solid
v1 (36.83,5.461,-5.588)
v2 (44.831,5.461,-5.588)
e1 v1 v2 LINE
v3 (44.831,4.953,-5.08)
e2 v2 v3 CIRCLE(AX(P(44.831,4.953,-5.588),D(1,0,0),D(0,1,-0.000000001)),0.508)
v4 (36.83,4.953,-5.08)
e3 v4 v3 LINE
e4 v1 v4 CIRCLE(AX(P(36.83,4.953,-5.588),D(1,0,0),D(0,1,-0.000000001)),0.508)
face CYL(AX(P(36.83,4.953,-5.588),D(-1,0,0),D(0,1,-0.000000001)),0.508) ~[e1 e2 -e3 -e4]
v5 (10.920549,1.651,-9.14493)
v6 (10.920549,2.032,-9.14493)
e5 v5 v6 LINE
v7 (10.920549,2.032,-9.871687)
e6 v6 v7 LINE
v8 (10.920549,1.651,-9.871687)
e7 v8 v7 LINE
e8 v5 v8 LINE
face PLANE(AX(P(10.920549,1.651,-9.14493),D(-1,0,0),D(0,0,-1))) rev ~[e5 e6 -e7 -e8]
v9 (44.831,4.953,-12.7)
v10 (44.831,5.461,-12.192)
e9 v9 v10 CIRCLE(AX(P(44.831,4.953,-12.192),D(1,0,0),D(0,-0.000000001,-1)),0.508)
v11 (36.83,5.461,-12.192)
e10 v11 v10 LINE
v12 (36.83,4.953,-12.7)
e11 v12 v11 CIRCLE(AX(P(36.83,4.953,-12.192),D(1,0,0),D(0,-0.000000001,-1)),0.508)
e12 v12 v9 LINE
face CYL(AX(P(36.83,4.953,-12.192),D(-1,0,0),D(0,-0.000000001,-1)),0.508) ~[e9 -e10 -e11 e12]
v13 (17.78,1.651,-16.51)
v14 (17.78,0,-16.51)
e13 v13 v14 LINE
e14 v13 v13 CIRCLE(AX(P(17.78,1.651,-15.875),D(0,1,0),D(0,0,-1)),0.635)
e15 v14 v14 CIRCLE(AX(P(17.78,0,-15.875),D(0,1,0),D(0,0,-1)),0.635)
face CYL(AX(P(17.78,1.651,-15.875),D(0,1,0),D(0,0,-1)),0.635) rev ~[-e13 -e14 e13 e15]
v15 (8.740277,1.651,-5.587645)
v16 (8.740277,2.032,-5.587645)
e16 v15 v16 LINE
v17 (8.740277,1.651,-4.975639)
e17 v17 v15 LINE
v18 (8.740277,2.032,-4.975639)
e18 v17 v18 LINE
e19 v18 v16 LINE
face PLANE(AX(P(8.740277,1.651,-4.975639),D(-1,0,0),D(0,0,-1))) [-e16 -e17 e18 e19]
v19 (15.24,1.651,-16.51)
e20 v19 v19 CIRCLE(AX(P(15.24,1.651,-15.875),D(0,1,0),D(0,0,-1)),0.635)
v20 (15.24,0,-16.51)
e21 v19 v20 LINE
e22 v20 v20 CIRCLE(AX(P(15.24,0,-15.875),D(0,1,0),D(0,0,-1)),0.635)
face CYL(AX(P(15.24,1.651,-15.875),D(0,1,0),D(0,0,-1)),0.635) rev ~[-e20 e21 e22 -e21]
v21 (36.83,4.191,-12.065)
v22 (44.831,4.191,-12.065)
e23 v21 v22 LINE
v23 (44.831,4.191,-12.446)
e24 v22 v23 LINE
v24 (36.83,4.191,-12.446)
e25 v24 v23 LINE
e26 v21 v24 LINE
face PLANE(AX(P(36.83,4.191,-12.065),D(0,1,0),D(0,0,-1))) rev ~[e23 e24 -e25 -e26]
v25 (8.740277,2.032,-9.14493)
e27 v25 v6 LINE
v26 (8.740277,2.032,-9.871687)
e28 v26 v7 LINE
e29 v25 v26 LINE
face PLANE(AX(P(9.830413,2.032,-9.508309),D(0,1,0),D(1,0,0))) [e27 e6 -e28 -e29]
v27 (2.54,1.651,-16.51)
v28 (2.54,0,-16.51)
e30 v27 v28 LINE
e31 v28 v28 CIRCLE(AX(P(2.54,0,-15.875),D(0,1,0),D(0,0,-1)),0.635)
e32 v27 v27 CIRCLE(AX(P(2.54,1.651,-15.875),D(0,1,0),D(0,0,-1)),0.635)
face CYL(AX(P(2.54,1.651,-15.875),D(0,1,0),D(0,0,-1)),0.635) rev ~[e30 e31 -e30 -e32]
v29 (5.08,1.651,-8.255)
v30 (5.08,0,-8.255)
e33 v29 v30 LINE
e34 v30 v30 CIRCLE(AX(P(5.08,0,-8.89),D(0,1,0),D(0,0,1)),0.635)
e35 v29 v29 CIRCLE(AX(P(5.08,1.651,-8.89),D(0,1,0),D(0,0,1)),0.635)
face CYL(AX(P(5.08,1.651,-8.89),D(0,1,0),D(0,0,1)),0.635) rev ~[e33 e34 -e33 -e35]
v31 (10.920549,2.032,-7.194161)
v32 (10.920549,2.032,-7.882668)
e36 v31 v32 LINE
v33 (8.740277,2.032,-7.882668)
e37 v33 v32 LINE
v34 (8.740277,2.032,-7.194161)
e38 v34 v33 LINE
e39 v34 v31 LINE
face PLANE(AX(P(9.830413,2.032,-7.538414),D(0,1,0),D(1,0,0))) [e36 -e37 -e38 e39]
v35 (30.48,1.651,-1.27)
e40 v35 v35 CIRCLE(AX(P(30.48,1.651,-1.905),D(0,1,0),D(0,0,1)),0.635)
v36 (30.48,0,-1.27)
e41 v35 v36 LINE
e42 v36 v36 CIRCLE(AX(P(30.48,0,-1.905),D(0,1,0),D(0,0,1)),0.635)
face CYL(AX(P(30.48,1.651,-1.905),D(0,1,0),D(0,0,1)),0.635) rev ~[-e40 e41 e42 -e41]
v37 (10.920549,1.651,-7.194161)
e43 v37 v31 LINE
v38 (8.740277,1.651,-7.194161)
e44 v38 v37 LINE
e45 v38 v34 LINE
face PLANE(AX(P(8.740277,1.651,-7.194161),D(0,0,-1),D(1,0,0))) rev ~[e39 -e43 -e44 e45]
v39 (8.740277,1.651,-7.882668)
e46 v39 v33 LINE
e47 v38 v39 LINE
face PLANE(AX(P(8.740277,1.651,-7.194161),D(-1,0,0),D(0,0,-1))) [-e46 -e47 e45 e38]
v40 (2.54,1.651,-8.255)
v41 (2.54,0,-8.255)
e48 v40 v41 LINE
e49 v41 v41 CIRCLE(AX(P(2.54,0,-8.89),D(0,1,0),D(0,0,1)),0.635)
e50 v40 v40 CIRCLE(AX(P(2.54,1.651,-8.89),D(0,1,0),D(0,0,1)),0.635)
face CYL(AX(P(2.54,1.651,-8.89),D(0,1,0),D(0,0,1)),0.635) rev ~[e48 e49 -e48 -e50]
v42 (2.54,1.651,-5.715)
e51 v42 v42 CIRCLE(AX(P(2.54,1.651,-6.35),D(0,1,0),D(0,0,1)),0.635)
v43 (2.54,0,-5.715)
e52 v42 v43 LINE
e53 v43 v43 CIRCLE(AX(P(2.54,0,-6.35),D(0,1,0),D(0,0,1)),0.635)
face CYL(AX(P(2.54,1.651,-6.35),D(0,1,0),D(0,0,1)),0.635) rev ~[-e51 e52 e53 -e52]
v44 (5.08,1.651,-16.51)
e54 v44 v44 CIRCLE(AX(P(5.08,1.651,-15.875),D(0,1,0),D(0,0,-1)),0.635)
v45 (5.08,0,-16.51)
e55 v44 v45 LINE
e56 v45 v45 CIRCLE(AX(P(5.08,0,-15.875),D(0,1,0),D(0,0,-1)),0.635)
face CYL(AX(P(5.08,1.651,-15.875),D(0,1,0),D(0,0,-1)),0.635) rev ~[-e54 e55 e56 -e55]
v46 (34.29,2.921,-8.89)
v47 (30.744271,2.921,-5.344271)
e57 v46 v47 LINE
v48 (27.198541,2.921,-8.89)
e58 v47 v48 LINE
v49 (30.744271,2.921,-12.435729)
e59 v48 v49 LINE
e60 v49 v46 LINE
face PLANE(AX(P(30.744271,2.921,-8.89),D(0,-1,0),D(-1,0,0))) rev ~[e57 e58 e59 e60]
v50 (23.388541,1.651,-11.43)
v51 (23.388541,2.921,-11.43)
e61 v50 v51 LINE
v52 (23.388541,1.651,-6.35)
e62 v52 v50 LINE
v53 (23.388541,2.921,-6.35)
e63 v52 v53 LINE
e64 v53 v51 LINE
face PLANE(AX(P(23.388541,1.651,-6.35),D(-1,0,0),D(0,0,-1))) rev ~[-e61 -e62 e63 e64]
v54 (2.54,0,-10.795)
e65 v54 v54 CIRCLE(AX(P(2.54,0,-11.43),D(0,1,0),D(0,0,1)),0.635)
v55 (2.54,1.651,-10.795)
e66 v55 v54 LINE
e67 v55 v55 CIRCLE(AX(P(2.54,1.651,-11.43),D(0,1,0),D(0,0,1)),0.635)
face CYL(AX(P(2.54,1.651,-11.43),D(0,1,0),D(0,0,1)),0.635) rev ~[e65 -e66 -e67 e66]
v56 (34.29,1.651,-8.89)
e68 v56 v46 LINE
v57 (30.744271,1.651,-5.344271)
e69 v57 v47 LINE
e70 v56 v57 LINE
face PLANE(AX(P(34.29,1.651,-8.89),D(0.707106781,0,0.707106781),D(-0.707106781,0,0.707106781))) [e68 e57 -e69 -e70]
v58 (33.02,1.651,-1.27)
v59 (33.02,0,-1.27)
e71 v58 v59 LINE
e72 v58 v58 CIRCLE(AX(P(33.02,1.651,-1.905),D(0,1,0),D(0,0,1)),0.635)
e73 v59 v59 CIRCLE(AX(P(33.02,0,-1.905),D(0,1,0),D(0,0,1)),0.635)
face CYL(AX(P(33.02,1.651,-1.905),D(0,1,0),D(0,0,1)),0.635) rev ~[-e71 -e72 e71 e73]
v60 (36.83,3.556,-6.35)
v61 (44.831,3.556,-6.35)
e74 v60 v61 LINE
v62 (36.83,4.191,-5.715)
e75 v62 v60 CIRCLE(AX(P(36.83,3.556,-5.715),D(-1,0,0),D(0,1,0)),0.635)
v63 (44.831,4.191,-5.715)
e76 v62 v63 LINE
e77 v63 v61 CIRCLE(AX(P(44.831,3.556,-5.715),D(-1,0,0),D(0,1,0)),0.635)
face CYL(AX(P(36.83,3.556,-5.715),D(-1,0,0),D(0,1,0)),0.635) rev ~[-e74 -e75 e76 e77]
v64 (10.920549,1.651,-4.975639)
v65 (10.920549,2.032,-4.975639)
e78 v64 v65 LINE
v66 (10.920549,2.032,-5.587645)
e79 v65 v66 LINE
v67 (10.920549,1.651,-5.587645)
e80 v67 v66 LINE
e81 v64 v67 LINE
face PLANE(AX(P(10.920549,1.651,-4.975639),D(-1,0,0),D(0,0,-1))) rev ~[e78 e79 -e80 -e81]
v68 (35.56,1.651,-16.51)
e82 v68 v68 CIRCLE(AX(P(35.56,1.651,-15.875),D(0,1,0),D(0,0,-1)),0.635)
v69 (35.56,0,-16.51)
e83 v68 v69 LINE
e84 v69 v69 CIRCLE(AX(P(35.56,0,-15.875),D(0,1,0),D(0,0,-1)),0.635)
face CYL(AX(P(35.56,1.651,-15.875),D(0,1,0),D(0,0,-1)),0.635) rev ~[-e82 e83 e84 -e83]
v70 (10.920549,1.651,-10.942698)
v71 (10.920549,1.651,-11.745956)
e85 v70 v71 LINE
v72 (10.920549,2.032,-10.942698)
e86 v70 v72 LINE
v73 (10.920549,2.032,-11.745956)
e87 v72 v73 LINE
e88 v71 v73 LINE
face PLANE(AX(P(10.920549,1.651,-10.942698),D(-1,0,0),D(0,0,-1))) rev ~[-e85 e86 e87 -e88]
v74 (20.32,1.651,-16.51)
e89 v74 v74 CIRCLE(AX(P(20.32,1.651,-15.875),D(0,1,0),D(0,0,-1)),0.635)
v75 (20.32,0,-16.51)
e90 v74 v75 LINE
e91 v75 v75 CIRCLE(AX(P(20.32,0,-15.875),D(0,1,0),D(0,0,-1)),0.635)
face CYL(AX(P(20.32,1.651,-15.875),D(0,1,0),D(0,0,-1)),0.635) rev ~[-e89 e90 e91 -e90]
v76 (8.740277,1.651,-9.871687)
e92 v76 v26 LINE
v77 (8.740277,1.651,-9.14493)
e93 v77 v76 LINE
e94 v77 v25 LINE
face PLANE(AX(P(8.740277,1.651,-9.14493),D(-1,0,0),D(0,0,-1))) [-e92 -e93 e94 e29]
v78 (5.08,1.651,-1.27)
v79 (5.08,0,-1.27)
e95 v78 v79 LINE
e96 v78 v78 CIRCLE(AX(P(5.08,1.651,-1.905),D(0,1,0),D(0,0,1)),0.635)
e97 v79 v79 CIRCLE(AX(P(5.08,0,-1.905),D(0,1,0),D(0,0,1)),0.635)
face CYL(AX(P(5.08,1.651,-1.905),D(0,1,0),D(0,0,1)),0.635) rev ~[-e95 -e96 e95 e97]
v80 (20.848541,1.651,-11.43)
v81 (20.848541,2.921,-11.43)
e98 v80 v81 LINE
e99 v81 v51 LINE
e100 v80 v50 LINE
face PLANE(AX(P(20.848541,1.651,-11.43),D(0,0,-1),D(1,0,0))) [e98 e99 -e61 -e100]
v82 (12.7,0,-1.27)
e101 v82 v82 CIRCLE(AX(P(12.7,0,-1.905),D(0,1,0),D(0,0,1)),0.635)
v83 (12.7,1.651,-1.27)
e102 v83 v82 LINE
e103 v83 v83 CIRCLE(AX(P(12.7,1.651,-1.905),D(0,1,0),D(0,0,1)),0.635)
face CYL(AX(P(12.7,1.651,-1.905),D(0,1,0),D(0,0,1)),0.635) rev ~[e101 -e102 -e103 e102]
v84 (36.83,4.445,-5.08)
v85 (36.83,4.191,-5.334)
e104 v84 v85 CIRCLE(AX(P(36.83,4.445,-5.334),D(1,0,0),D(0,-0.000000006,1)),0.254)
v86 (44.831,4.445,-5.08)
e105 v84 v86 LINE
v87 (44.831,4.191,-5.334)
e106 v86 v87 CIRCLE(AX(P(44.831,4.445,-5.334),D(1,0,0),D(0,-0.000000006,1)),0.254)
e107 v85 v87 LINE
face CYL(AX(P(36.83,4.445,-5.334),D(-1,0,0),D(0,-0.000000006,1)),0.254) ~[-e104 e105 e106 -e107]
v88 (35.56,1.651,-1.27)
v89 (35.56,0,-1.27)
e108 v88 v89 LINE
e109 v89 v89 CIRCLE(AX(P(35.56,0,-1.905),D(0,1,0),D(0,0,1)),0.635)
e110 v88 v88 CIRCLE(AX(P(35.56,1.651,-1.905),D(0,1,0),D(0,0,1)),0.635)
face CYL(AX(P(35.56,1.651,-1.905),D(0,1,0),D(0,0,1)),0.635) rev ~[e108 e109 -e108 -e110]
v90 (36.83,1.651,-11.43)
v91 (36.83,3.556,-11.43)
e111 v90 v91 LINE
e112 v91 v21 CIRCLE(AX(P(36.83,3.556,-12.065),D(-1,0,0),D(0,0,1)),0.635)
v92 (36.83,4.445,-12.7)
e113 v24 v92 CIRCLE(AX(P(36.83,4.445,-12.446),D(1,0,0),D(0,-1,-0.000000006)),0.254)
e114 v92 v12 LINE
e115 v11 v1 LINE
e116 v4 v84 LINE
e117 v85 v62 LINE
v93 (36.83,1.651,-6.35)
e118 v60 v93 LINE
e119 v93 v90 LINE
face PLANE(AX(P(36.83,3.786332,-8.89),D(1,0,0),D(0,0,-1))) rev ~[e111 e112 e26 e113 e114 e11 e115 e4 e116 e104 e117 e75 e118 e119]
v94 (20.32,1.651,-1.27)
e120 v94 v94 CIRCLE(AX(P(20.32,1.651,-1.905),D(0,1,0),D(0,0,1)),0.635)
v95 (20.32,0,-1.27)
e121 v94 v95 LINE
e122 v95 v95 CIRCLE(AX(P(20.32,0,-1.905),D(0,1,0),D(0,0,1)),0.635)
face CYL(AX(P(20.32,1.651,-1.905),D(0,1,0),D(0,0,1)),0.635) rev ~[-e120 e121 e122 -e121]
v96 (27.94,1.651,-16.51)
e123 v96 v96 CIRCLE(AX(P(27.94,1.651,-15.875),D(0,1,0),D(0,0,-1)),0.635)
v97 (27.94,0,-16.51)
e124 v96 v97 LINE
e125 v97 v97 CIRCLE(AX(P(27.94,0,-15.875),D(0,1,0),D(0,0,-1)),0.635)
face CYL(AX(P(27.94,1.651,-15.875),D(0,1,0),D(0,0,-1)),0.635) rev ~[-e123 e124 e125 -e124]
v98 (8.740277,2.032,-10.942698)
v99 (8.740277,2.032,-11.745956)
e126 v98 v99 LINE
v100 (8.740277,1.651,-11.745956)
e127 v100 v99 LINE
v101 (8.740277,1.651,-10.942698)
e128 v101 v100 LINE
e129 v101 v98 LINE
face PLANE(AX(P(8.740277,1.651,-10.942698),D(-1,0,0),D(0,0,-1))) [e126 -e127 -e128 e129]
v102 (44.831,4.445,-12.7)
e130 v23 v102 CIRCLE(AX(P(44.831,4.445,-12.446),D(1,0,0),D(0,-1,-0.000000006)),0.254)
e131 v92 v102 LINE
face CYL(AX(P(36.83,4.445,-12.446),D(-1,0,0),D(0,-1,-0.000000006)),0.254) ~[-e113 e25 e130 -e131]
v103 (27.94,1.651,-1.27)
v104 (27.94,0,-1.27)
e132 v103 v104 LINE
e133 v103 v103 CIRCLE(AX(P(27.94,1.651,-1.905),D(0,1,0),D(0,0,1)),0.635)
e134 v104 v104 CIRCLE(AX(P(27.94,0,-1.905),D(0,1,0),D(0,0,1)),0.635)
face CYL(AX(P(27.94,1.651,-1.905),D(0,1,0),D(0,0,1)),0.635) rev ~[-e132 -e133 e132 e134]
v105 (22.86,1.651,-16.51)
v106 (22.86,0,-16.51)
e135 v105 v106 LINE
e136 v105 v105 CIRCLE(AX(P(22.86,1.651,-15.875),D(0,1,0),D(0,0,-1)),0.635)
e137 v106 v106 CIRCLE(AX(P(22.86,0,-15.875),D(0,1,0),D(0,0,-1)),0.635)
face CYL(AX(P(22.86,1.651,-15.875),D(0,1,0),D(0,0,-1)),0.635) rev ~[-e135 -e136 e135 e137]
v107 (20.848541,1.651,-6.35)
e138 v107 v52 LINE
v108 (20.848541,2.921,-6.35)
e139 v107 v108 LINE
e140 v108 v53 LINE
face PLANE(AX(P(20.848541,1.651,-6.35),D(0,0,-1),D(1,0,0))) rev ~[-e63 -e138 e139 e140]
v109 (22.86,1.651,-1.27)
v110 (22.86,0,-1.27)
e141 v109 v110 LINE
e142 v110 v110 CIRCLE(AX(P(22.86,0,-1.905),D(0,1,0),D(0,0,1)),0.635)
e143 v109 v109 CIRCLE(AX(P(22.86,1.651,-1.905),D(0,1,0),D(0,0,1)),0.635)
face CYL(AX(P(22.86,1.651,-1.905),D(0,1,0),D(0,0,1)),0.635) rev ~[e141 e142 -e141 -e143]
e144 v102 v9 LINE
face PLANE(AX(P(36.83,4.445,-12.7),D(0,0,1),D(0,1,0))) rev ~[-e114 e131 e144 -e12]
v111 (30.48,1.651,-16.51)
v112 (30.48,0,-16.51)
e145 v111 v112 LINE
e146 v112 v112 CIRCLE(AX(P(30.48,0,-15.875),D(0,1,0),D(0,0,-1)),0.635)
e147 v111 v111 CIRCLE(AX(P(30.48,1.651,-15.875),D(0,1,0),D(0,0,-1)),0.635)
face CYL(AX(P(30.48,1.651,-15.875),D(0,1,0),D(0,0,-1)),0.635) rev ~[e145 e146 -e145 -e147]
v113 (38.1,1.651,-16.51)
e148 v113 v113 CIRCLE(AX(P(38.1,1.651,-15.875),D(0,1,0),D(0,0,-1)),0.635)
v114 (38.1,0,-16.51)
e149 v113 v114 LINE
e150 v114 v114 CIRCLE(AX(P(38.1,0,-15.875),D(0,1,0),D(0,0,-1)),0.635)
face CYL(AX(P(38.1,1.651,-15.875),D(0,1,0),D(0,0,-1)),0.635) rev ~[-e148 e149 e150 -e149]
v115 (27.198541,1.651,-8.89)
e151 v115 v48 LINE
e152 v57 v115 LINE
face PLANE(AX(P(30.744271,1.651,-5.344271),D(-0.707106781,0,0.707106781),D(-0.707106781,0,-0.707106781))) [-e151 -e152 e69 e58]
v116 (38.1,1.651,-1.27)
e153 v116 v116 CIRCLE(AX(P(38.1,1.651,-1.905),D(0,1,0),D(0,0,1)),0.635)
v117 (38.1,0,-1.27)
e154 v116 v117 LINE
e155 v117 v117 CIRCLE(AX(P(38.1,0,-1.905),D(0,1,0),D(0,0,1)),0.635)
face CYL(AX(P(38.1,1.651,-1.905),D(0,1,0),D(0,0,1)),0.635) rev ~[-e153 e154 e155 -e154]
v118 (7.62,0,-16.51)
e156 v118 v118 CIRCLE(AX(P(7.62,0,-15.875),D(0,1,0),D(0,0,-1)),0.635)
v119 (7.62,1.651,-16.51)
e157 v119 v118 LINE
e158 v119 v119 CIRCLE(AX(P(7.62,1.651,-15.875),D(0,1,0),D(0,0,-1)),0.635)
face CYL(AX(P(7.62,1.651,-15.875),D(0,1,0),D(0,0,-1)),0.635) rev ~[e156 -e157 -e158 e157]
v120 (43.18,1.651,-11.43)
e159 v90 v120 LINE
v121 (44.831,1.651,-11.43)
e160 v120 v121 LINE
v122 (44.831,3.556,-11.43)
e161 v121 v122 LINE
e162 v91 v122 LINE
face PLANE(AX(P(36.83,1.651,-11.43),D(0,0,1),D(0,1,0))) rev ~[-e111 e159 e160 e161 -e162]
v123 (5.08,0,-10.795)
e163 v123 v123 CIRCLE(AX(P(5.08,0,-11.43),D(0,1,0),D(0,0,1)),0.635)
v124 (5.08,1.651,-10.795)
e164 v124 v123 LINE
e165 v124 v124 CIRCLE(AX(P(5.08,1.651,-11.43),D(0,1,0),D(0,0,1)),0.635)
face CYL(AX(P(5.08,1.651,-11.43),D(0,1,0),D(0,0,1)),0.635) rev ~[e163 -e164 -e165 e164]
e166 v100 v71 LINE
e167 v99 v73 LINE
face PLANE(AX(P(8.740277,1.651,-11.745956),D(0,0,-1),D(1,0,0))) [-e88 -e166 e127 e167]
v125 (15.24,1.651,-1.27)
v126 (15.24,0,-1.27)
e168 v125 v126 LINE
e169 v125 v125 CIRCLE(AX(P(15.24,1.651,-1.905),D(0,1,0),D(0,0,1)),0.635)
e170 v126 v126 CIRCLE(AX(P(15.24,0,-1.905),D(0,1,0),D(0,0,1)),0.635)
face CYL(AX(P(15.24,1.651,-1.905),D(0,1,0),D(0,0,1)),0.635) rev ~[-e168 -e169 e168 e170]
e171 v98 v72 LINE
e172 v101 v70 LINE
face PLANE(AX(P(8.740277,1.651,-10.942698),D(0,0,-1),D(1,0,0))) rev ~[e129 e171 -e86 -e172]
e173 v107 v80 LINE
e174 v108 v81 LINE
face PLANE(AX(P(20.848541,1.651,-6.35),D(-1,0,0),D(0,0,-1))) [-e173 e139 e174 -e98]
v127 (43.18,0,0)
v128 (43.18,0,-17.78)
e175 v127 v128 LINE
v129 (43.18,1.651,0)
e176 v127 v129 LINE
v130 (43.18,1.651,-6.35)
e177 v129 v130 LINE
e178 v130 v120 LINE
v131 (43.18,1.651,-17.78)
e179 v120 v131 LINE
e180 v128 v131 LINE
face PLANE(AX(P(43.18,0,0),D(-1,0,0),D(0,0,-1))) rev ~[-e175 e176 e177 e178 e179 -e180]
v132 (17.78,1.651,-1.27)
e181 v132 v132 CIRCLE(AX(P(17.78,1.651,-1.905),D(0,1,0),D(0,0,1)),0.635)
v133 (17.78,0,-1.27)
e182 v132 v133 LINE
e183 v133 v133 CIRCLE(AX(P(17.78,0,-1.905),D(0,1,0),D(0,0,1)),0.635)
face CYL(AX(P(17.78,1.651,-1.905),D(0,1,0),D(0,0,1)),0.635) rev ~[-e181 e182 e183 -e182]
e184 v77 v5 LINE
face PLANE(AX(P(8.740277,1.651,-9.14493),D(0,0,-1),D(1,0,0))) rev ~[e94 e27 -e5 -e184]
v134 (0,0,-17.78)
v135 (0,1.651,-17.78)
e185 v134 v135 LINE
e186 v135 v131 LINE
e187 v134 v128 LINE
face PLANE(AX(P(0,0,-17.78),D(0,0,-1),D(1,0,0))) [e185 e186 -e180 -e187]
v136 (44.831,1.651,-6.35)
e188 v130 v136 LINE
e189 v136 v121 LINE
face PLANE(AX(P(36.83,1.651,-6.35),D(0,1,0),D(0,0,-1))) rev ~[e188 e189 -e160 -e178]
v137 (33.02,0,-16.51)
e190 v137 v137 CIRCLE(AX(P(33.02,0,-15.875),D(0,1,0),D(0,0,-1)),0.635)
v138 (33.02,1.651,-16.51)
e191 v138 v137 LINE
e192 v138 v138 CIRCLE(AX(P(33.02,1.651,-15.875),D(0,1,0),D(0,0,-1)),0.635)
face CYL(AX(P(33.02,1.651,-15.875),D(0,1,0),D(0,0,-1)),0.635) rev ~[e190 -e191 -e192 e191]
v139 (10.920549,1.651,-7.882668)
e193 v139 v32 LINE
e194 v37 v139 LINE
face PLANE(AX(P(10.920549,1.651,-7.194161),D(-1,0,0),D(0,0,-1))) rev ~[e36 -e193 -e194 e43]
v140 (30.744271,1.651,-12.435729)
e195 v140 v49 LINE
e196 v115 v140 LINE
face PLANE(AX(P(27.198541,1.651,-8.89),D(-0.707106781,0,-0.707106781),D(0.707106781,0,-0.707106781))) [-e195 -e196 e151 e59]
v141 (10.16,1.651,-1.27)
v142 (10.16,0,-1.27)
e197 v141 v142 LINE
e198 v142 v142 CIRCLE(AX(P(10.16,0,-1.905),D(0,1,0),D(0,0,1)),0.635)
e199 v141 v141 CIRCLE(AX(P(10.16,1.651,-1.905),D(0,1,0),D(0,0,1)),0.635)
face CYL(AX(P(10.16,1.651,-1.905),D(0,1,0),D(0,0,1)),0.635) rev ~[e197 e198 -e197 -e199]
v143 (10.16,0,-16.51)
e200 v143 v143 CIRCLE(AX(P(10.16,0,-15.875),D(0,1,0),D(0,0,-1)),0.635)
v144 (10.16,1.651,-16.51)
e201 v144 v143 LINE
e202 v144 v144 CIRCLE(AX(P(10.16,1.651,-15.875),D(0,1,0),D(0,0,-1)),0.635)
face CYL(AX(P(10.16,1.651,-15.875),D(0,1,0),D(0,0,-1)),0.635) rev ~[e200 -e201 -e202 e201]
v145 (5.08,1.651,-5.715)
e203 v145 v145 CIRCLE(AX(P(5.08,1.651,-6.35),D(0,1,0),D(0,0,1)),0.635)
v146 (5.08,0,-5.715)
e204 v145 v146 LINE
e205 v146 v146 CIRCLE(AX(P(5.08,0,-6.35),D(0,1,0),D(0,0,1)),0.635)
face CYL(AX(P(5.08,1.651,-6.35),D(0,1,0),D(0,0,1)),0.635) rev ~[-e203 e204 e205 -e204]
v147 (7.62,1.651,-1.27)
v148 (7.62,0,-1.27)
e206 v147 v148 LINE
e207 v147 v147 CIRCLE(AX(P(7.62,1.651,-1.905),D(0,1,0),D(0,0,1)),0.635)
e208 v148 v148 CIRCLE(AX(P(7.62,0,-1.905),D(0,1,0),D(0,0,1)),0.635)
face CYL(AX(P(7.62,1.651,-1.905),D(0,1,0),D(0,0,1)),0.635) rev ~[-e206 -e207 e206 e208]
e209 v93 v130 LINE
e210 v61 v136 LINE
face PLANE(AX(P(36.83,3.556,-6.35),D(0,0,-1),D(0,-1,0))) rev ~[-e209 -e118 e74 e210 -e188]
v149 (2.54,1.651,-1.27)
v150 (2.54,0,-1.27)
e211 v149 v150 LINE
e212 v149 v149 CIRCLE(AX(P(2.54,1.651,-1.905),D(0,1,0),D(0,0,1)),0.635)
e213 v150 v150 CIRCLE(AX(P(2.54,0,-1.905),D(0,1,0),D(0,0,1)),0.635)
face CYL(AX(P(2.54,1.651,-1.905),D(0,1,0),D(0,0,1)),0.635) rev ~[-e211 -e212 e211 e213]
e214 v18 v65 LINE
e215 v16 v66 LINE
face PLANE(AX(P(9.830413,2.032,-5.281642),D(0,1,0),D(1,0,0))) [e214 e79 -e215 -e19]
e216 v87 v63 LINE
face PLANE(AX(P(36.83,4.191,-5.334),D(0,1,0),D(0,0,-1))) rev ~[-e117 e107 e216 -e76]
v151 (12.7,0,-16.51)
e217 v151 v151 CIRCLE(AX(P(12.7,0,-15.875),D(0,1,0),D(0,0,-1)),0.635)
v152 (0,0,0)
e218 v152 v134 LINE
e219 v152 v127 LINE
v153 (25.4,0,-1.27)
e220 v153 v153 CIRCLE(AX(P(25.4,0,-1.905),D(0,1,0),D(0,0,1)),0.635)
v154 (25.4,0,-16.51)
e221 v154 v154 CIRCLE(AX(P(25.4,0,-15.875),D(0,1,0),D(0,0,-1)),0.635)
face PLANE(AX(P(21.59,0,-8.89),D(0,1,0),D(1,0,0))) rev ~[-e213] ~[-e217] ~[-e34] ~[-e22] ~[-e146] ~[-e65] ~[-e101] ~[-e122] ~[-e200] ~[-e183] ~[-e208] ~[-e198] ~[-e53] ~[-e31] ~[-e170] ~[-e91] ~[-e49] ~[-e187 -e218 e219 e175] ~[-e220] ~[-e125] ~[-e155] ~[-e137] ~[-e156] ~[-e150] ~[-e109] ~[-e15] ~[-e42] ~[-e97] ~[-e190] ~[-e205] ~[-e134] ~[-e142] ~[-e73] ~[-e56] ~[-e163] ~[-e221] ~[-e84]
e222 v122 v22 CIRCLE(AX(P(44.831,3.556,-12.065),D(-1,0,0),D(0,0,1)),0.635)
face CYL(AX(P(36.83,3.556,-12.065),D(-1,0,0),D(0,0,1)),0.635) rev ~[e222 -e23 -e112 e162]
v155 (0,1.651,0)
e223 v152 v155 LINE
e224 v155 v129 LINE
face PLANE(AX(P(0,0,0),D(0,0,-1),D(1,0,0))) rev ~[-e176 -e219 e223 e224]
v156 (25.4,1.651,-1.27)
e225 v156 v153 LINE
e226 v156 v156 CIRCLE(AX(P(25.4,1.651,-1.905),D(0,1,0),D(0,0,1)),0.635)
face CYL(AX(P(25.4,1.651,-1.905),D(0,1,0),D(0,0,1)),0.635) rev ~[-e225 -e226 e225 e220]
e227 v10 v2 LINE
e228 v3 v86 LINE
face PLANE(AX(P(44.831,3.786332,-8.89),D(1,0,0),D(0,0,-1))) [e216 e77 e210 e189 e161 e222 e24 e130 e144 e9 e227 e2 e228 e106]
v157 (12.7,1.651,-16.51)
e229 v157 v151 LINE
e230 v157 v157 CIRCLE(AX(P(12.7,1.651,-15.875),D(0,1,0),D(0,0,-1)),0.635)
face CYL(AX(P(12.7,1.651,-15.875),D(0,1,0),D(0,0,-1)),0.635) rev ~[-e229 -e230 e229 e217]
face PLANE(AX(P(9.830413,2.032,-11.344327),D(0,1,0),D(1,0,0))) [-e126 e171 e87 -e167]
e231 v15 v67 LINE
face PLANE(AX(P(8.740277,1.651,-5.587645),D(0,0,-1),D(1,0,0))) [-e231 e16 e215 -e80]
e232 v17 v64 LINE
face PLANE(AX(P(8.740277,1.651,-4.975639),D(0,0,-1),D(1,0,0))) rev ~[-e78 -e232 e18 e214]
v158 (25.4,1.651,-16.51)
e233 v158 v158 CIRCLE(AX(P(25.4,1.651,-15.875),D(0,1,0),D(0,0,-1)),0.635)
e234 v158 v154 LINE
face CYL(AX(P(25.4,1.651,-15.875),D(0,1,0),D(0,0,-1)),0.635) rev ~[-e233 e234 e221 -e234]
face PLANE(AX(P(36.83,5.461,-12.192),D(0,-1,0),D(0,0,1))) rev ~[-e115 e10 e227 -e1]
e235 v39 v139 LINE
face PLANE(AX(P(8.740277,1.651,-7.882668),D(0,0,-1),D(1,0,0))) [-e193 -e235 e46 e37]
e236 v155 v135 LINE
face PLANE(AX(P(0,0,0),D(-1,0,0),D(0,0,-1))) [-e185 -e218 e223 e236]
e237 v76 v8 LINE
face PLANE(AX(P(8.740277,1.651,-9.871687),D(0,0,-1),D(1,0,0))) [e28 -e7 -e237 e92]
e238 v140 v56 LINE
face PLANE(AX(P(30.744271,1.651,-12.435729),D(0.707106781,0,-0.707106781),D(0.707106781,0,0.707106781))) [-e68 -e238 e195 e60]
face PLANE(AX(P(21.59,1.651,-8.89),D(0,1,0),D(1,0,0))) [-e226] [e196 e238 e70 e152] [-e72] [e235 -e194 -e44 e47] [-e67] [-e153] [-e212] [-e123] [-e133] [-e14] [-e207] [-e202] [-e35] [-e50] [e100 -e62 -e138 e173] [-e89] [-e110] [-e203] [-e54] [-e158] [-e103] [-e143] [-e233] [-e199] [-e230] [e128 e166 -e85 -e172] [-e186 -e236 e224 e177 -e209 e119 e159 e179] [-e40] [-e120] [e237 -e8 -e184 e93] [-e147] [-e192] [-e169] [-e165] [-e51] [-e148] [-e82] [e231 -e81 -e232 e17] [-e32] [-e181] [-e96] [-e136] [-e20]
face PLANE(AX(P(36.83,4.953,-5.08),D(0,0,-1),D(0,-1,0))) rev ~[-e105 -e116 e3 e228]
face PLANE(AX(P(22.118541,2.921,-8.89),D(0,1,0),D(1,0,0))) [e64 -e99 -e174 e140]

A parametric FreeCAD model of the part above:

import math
import FreeCAD as App
import Part
import Sketcher
from FreeCAD import Vector
Q = App.Units.Quantity

doc = App.newDocument("Part")
body = doc.addObject("PartDesign::Body", "Body")

# Sketch on XZ plane
sketch1 = doc.addObject("Sketcher::SketchObject", "Sketch")
body.addObject(sketch1)
sketch1.AttachmentSupport = (doc.XZ_Plane, [""])
sketch1.MapMode = "FlatFace"
sketch1.addGeometry(Part.LineSegment(Vector(0, -18, 0), Vector(0, 0, 0)), False)
sketch1.addGeometry(Part.LineSegment(Vector(0, 0, 0), Vector(43, 0, 0)), False)
sketch1.addGeometry(Part.LineSegment(Vector(43, 0, 0), Vector(43, -18, 0)), False)
sketch1.addGeometry(Part.LineSegment(Vector(43, -18, 0), Vector(0, -18, 0)), False)
sketch1.addConstraint(Sketcher.Constraint("Coincident", 0, 2, 1, 1))
sketch1.addConstraint(Sketcher.Constraint("Coincident", 1, 2, 2, 1))
sketch1.addConstraint(Sketcher.Constraint("Coincident", 2, 2, 3, 1))
sketch1.addConstraint(Sketcher.Constraint("Coincident", 3, 2, 0, 1))
sketch1.addConstraint(Sketcher.Constraint("Vertical", 0))
sketch1.addConstraint(Sketcher.Constraint("Horizontal", 1))
sketch1.addConstraint(Sketcher.Constraint("Vertical", 2))
sketch1.addConstraint(Sketcher.Constraint("Horizontal", 3))
sketch1.addConstraint(Sketcher.Constraint("Coincident", 0, 2, -1, 1))
sketch1.addConstraint(Sketcher.Constraint("DistanceX", 1, 1, 1, 2, Q("1.7 in")))
sketch1.addConstraint(Sketcher.Constraint("DistanceY", 0, 1, 0, 2, Q("0.7 in")))
pad1 = doc.addObject("PartDesign::Pad", "Pad")
body.addObject(pad1)
pad1.Profile = sketch1
pad1.Length = Q("0.065 in")
pad1.Reversed = True

# Sketch on XZ plane
sketch2 = doc.addObject("Sketcher::SketchObject", "Sketch001")
body.addObject(sketch2)
sketch2.AttachmentSupport = (doc.XZ_Plane, [""])
sketch2.MapMode = "FlatFace"
sketch2.AttachmentOffset = App.Placement(Vector(0, 0, -0.065 * 25.4), App.Rotation())
sketch2.addGeometry(Part.Circle(Vector(2.5, -1.9, 0), Vector(0, 0, 1), 0.6), False)
sketch2.addGeometry(Part.Circle(Vector(5.1, -1.9, 0), Vector(0, 0, 1), 0.6), False)
sketch2.addGeometry(Part.Circle(Vector(7.6, -1.9, 0), Vector(0, 0, 1), 0.6), False)
sketch2.addGeometry(Part.Circle(Vector(10.2, -1.9, 0), Vector(0, 0, 1), 0.6), False)
sketch2.addGeometry(Part.Circle(Vector(12.7, -1.9, 0), Vector(0, 0, 1), 0.6), False)
sketch2.addGeometry(Part.Circle(Vector(15.2, -1.9, 0), Vector(0, 0, 1), 0.6), False)
sketch2.addGeometry(Part.Circle(Vector(17.8, -1.9, 0), Vector(0, 0, 1), 0.6), False)
sketch2.addGeometry(Part.Circle(Vector(20.3, -1.9, 0), Vector(0, 0, 1), 0.6), False)
sketch2.addGeometry(Part.Circle(Vector(22.9, -1.9, 0), Vector(0, 0, 1), 0.6), False)
sketch2.addGeometry(Part.Circle(Vector(25.4, -1.9, 0), Vector(0, 0, 1), 0.6), False)
sketch2.addGeometry(Part.Circle(Vector(27.9, -1.9, 0), Vector(0, 0, 1), 0.6), False)
sketch2.addGeometry(Part.Circle(Vector(30.5, -1.9, 0), Vector(0, 0, 1), 0.6), False)
sketch2.addGeometry(Part.Circle(Vector(33, -1.9, 0), Vector(0, 0, 1), 0.6), False)
sketch2.addGeometry(Part.Circle(Vector(35.6, -1.9, 0), Vector(0, 0, 1), 0.6), False)
sketch2.addGeometry(Part.Circle(Vector(38.1, -1.9, 0), Vector(0, 0, 1), 0.6), False)
sketch2.addGeometry(Part.Circle(Vector(38.1, -15.9, 0), Vector(0, 0, 1), 0.6), False)
sketch2.addGeometry(Part.Circle(Vector(35.6, -15.9, 0), Vector(0, 0, 1), 0.6), False)
sketch2.addGeometry(Part.Circle(Vector(33, -15.9, 0), Vector(0, 0, 1), 0.6), False)
sketch2.addGeometry(Part.Circle(Vector(30.5, -15.9, 0), Vector(0, 0, 1), 0.6), False)
sketch2.addGeometry(Part.Circle(Vector(27.9, -15.9, 0), Vector(0, 0, 1), 0.6), False)
sketch2.addGeometry(Part.Circle(Vector(25.4, -15.9, 0), Vector(0, 0, 1), 0.6), False)
sketch2.addGeometry(Part.Circle(Vector(22.9, -15.9, 0), Vector(0, 0, 1), 0.6), False)
sketch2.addGeometry(Part.Circle(Vector(20.3, -15.9, 0), Vector(0, 0, 1), 0.6), False)
sketch2.addGeometry(Part.Circle(Vector(17.8, -15.9, 0), Vector(0, 0, 1), 0.6), False)
sketch2.addGeometry(Part.Circle(Vector(15.2, -15.9, 0), Vector(0, 0, 1), 0.6), False)
sketch2.addGeometry(Part.Circle(Vector(12.7, -15.9, 0), Vector(0, 0, 1), 0.6), False)
sketch2.addGeometry(Part.Circle(Vector(10.2, -15.9, 0), Vector(0, 0, 1), 0.6), False)
sketch2.addGeometry(Part.Circle(Vector(7.6, -15.9, 0), Vector(0, 0, 1), 0.6), False)
sketch2.addGeometry(Part.Circle(Vector(5.1, -15.9, 0), Vector(0, 0, 1), 0.6), False)
sketch2.addGeometry(Part.Circle(Vector(2.5, -15.9, 0), Vector(0, 0, 1), 0.6), False)
sketch2.addConstraint(Sketcher.Constraint("Equal", 0, 1))
sketch2.addConstraint(Sketcher.Constraint("Equal", 1, 2))
sketch2.addConstraint(Sketcher.Constraint("Equal", 2, 3))
sketch2.addConstraint(Sketcher.Constraint("Equal", 3, 4))
sketch2.addConstraint(Sketcher.Constraint("Equal", 4, 5))
sketch2.addConstraint(Sketcher.Constraint("Equal", 5, 6))
sketch2.addConstraint(Sketcher.Constraint("Equal", 6, 7))
sketch2.addConstraint(Sketcher.Constraint("Equal", 7, 8))
sketch2.addConstraint(Sketcher.Constraint("Equal", 8, 9))
sketch2.addConstraint(Sketcher.Constraint("Equal", 9, 10))
sketch2.addConstraint(Sketcher.Constraint("Equal", 10, 11))
sketch2.addConstraint(Sketcher.Constraint("Equal", 11, 12))
sketch2.addConstraint(Sketcher.Constraint("Equal", 12, 13))
sketch2.addConstraint(Sketcher.Constraint("Equal", 13, 14))
sketch2.addConstraint(Sketcher.Constraint("Equal", 14, 15))
sketch2.addConstraint(Sketcher.Constraint("Equal", 15, 16))
sketch2.addConstraint(Sketcher.Constraint("Equal", 16, 17))
sketch2.addConstraint(Sketcher.Constraint("Equal", 17, 18))
sketch2.addConstraint(Sketcher.Constraint("Equal", 18, 19))
sketch2.addConstraint(Sketcher.Constraint("Equal", 19, 20))
sketch2.addConstraint(Sketcher.Constraint("Equal", 20, 21))
sketch2.addConstraint(Sketcher.Constraint("Equal", 21, 22))
sketch2.addConstraint(Sketcher.Constraint("Equal", 22, 23))
sketch2.addConstraint(Sketcher.Constraint("Equal", 23, 24))
sketch2.addConstraint(Sketcher.Constraint("Equal", 24, 25))
sketch2.addConstraint(Sketcher.Constraint("Equal", 25, 26))
sketch2.addConstraint(Sketcher.Constraint("Equal", 26, 27))
sketch2.addConstraint(Sketcher.Constraint("Equal", 27, 28))
sketch2.addConstraint(Sketcher.Constraint("Equal", 28, 29))
sketch2.addConstraint(Sketcher.Constraint("Horizontal", 0, 3, 1, 3))
sketch2.addConstraint(Sketcher.Constraint("Horizontal", 1, 3, 2, 3))
sketch2.addConstraint(Sketcher.Constraint("Horizontal", 2, 3, 3, 3))
sketch2.addConstraint(Sketcher.Constraint("Horizontal", 3, 3, 4, 3))
sketch2.addConstraint(Sketcher.Constraint("Horizontal", 4, 3, 5, 3))
sketch2.addConstraint(Sketcher.Constraint("Horizontal", 5, 3, 6, 3))
sketch2.addConstraint(Sketcher.Constraint("Horizontal", 6, 3, 7, 3))
sketch2.addConstraint(Sketcher.Constraint("Horizontal", 7, 3, 8, 3))
sketch2.addConstraint(Sketcher.Constraint("Horizontal", 8, 3, 9, 3))
sketch2.addConstraint(Sketcher.Constraint("Horizontal", 9, 3, 10, 3))
sketch2.addConstraint(Sketcher.Constraint("Horizontal", 10, 3, 11, 3))
sketch2.addConstraint(Sketcher.Constraint("Horizontal", 11, 3, 12, 3))
sketch2.addConstraint(Sketcher.Constraint("Horizontal", 12, 3, 13, 3))
sketch2.addConstraint(Sketcher.Constraint("Horizontal", 13, 3, 14, 3))
sketch2.addConstraint(Sketcher.Constraint("Horizontal", 15, 3, 16, 3))
sketch2.addConstraint(Sketcher.Constraint("Horizontal", 16, 3, 17, 3))
sketch2.addConstraint(Sketcher.Constraint("Horizontal", 17, 3, 18, 3))
sketch2.addConstraint(Sketcher.Constraint("Horizontal", 18, 3, 19, 3))
sketch2.addConstraint(Sketcher.Constraint("Horizontal", 19, 3, 20, 3))
sketch2.addConstraint(Sketcher.Constraint("Horizontal", 20, 3, 21, 3))
sketch2.addConstraint(Sketcher.Constraint("Horizontal", 21, 3, 22, 3))
sketch2.addConstraint(Sketcher.Constraint("Horizontal", 22, 3, 23, 3))
sketch2.addConstraint(Sketcher.Constraint("Horizontal", 23, 3, 24, 3))
sketch2.addConstraint(Sketcher.Constraint("Horizontal", 24, 3, 25, 3))
sketch2.addConstraint(Sketcher.Constraint("Horizontal", 25, 3, 26, 3))
sketch2.addConstraint(Sketcher.Constraint("Horizontal", 26, 3, 27, 3))
sketch2.addConstraint(Sketcher.Constraint("Horizontal", 27, 3, 28, 3))
sketch2.addConstraint(Sketcher.Constraint("Horizontal", 28, 3, 29, 3))
sketch2.addConstraint(Sketcher.Constraint("Vertical", 14, 3, 15, 3))
sketch2.addConstraint(Sketcher.Constraint("Vertical", 13, 3, 16, 3))
sketch2.addConstraint(Sketcher.Constraint("Vertical", 12, 3, 17, 3))
sketch2.addConstraint(Sketcher.Constraint("Vertical", 11, 3, 18, 3))
sketch2.addConstraint(Sketcher.Constraint("Vertical", 10, 3, 19, 3))
sketch2.addConstraint(Sketcher.Constraint("Vertical", 9, 3, 20, 3))
sketch2.addConstraint(Sketcher.Constraint("Vertical", 8, 3, 21, 3))
sketch2.addConstraint(Sketcher.Constraint("Vertical", 7, 3, 22, 3))
sketch2.addConstraint(Sketcher.Constraint("Vertical", 6, 3, 23, 3))
sketch2.addConstraint(Sketcher.Constraint("Vertical", 5, 3, 24, 3))
sketch2.addConstraint(Sketcher.Constraint("Vertical", 4, 3, 25, 3))
sketch2.addConstraint(Sketcher.Constraint("Vertical", 3, 3, 26, 3))
sketch2.addConstraint(Sketcher.Constraint("Vertical", 2, 3, 27, 3))
sketch2.addConstraint(Sketcher.Constraint("Vertical", 1, 3, 28, 3))
sketch2.addConstraint(Sketcher.Constraint("Vertical", 0, 3, 29, 3))
sketch2.addConstraint(Sketcher.Constraint("Diameter", 0, Q("0.05 in")))
sketch2.addConstraint(Sketcher.Constraint("DistanceX", -1, 1, 9, 3, Q("1 in")))
sketch2.addConstraint(Sketcher.Constraint("DistanceX", -1, 1, 0, 3, Q("0.1 in")))
sketch2.addConstraint(Sketcher.Constraint("DistanceX", -1, 1, 1, 3, Q("0.2 in")))
sketch2.addConstraint(Sketcher.Constraint("DistanceX", -1, 1, 2, 3, Q("0.3 in")))
sketch2.addConstraint(Sketcher.Constraint("DistanceX", -1, 1, 3, 3, Q("0.4 in")))
sketch2.addConstraint(Sketcher.Constraint("DistanceX", -1, 1, 4, 3, Q("0.5 in")))
sketch2.addConstraint(Sketcher.Constraint("DistanceX", -1, 1, 5, 3, Q("0.6 in")))
sketch2.addConstraint(Sketcher.Constraint("DistanceX", -1, 1, 6, 3, Q("0.7 in")))
sketch2.addConstraint(Sketcher.Constraint("DistanceX", -1, 1, 7, 3, Q("0.8 in")))
sketch2.addConstraint(Sketcher.Constraint("DistanceX", -1, 1, 8, 3, Q("0.9 in")))
sketch2.addConstraint(Sketcher.Constraint("DistanceX", -1, 1, 10, 3, Q("1.1 in")))
sketch2.addConstraint(Sketcher.Constraint("DistanceX", -1, 1, 11, 3, Q("1.2 in")))
sketch2.addConstraint(Sketcher.Constraint("DistanceX", -1, 1, 12, 3, Q("1.3 in")))
sketch2.addConstraint(Sketcher.Constraint("DistanceX", -1, 1, 13, 3, Q("1.4 in")))
sketch2.addConstraint(Sketcher.Constraint("DistanceX", -1, 1, 14, 3, Q("1.5 in")))
sketch2.addConstraint(Sketcher.Constraint("DistanceY", 15, 3, 14, 3, Q("0.55 in")))
sketch2.addConstraint(Sketcher.Constraint("DistanceY", 0, 3, -1, 1, Q("0.075 in")))
pocket1 = doc.addObject("PartDesign::Pocket", "Pocket")
body.addObject(pocket1)
pocket1.Profile = sketch2
pocket1.Type = "ThroughAll"
pocket1.Reversed = True

# Sketch on YZ plane
sketch3 = doc.addObject("Sketcher::SketchObject", "Sketch002")
body.addObject(sketch3)
sketch3.AttachmentSupport = (doc.YZ_Plane, [""])
sketch3.MapMode = "FlatFace"
sketch3.AttachmentOffset = App.Placement(Vector(0, 0, 1.7 * 25.4), App.Rotation())
sketch3.addGeometry(Part.LineSegment(Vector(1.65, -6.35, 0), Vector(1.65, -11.43, 0)), False)
sketch3.addGeometry(Part.LineSegment(Vector(1.65, -11.43, 0), Vector(3.56, -11.43, 0)), False)
sketch3.addGeometry(Part.ArcOfCircle(Part.Circle(Vector(3.56, -12.06, 0), Vector(0, 0, 1), 0.64), math.radians(0), math.radians(90)), False)
sketch3.addGeometry(Part.LineSegment(Vector(4.19, -12.06, 0), Vector(4.19, -12.45, 0)), False)
sketch3.addGeometry(Part.ArcOfCircle(Part.Circle(Vector(4.45, -12.45, 0), Vector(0, 0, 1), 0.25), math.radians(-180), math.radians(-90)), False)
sketch3.addGeometry(Part.LineSegment(Vector(4.45, -12.7, 0), Vector(4.95, -12.7, 0)), False)
sketch3.addGeometry(Part.ArcOfCircle(Part.Circle(Vector(4.95, -12.19, 0), Vector(0, 0, 1), 0.51), math.radians(-90), math.radians(0)), False)
sketch3.addGeometry(Part.LineSegment(Vector(5.46, -12.19, 0), Vector(5.46, -5.59, 0)), False)
sketch3.addGeometry(Part.ArcOfCircle(Part.Circle(Vector(4.95, -5.59, 0), Vector(0, 0, 1), 0.51), math.radians(0), math.radians(90)), False)
sketch3.addGeometry(Part.LineSegment(Vector(4.95, -5.08, 0), Vector(4.45, -5.08, 0)), False)
sketch3.addGeometry(Part.ArcOfCircle(Part.Circle(Vector(4.45, -5.33, 0), Vector(0, 0, 1), 0.25), math.radians(90), math.radians(180)), False)
sketch3.addGeometry(Part.LineSegment(Vector(4.19, -5.33, 0), Vector(4.19, -5.71, 0)), False)
sketch3.addGeometry(Part.ArcOfCircle(Part.Circle(Vector(3.56, -5.71, 0), Vector(0, 0, 1), 0.64), math.radians(-90), math.radians(0)), False)
sketch3.addGeometry(Part.LineSegment(Vector(3.56, -6.35, 0), Vector(1.65, -6.35, 0)), False)
sketch3.addConstraint(Sketcher.Constraint("Coincident", 0, 2, 1, 1))
sketch3.addConstraint(Sketcher.Constraint("Tangent", 1, 2, 2, 2))
sketch3.addConstraint(Sketcher.Constraint("Tangent", 2, 1, 3, 1))
sketch3.addConstraint(Sketcher.Constraint("Tangent", 3, 2, 4, 1))
sketch3.addConstraint(Sketcher.Constraint("Tangent", 4, 2, 5, 1))
sketch3.addConstraint(Sketcher.Constraint("Tangent", 5, 2, 6, 1))
sketch3.addConstraint(Sketcher.Constraint("Tangent", 6, 2, 7, 1))
sketch3.addConstraint(Sketcher.Constraint("Tangent", 7, 2, 8, 1))
sketch3.addConstraint(Sketcher.Constraint("Tangent", 8, 2, 9, 1))
sketch3.addConstraint(Sketcher.Constraint("Tangent", 9, 2, 10, 1))
sketch3.addConstraint(Sketcher.Constraint("Tangent", 10, 2, 11, 1))
sketch3.addConstraint(Sketcher.Constraint("Tangent", 11, 2, 12, 2))
sketch3.addConstraint(Sketcher.Constraint("Tangent", 12, 1, 13, 1))
sketch3.addConstraint(Sketcher.Constraint("Coincident", 13, 2, 0, 1))
sketch3.addConstraint(Sketcher.Constraint("Vertical", 0))
sketch3.addConstraint(Sketcher.Constraint("Horizontal", 1))
sketch3.addConstraint(Sketcher.Constraint("Vertical", 3))
sketch3.addConstraint(Sketcher.Constraint("Horizontal", 5))
sketch3.addConstraint(Sketcher.Constraint("Vertical", 7))
sketch3.addConstraint(Sketcher.Constraint("Horizontal", 9))
sketch3.addConstraint(Sketcher.Constraint("Vertical", 11))
sketch3.addConstraint(Sketcher.Constraint("Horizontal", 13))
sketch3.addConstraint(Sketcher.Constraint("Equal", 6, 8))
sketch3.addConstraint(Sketcher.Constraint("Equal", 4, 10))
sketch3.addConstraint(Sketcher.Constraint("Equal", 2, 12))
sketch3.addConstraint(Sketcher.Constraint("Vertical", 4, 3, 10, 3))
sketch3.addConstraint(Sketcher.Constraint("Equal", 3, 11))
sketch3.addConstraint(Sketcher.Constraint("Radius", 4, Q("0.01 in")))
sketch3.addConstraint(Sketcher.Constraint("Radius", 6, Q("0.02 in")))
sketch3.addConstraint(Sketcher.Constraint("DistanceY", 0, 2, 0, 1, Q("0.2 in")))
sketch3.addConstraint(Sketcher.Constraint("Radius", 2, Q("0.025 in")))
sketch3.addConstraint(Sketcher.Constraint("DistanceX", 5, 1, 5, 2, Q("0.02 in")))
sketch3.addConstraint(Sketcher.Constraint("DistanceY", 7, 1, 7, 2, Q("0.26 in")))
sketch3.addConstraint(Sketcher.Constraint("DistanceY", 4, 2, -1, 1, Q("0.5 in")))
sketch3.addConstraint(Sketcher.Constraint("DistanceX", 0, 2, 2, 1, Q("0.1 in")))
sketch3.addConstraint(Sketcher.Constraint("DistanceX", -1, 1, 2, 3, Q("0.14 in")))
pad2 = doc.addObject("PartDesign::Pad", "Pad001")
body.addObject(pad2)
pad2.Profile = sketch3
pad2.Type = "TwoLengths"
pad2.Length = Q("0.065 in")
pad2.Length2 = Q("0.25 in")

# Sketch on XZ plane
sketch4 = doc.addObject("Sketcher::SketchObject", "Sketch003")
body.addObject(sketch4)
sketch4.AttachmentSupport = (doc.XZ_Plane, [""])
sketch4.MapMode = "FlatFace"
sketch4.AttachmentOffset = App.Placement(Vector(0, 0, -0.065 * 25.4), App.Rotation())
sketch4.addGeometry(Part.LineSegment(Vector(30.7, -12.4, 0), Vector(27.2, -8.9, 0)), False)
sketch4.addGeometry(Part.LineSegment(Vector(27.2, -8.9, 0), Vector(30.7, -5.3, 0)), False)
sketch4.addGeometry(Part.LineSegment(Vector(30.7, -5.3, 0), Vector(34.3, -8.9, 0)), False)
sketch4.addGeometry(Part.LineSegment(Vector(34.3, -8.9, 0), Vector(30.7, -12.4, 0)), False)
sketch4.addGeometry(Part.LineSegment(Vector(20.8, -11.4, 0), Vector(20.8, -6.3, 0)), False)
sketch4.addGeometry(Part.LineSegment(Vector(20.8, -6.3, 0), Vector(23.4, -6.3, 0)), False)
sketch4.addGeometry(Part.LineSegment(Vector(23.4, -6.3, 0), Vector(23.4, -11.4, 0)), False)
sketch4.addGeometry(Part.LineSegment(Vector(23.4, -11.4, 0), Vector(20.8, -11.4, 0)), False)
sketch4.addConstraint(Sketcher.Constraint("Coincident", 0, 2, 1, 1))
sketch4.addConstraint(Sketcher.Constraint("Coincident", 1, 2, 2, 1))
sketch4.addConstraint(Sketcher.Constraint("Coincident", 2, 2, 3, 1))
sketch4.addConstraint(Sketcher.Constraint("Coincident", 3, 2, 0, 1))
sketch4.addConstraint(Sketcher.Constraint("Coincident", 4, 2, 5, 1))
sketch4.addConstraint(Sketcher.Constraint("Coincident", 5, 2, 6, 1))
sketch4.addConstraint(Sketcher.Constraint("Coincident", 6, 2, 7, 1))
sketch4.addConstraint(Sketcher.Constraint("Coincident", 7, 2, 4, 1))
sketch4.addConstraint(Sketcher.Constraint("Vertical", 4))
sketch4.addConstraint(Sketcher.Constraint("Horizontal", 5))
sketch4.addConstraint(Sketcher.Constraint("Vertical", 6))
sketch4.addConstraint(Sketcher.Constraint("Horizontal", 7))
sketch4.addConstraint(Sketcher.Constraint("Perpendicular", 0, 1))
sketch4.addConstraint(Sketcher.Constraint("Perpendicular", 1, 2))
sketch4.addConstraint(Sketcher.Constraint("Perpendicular", 2, 3))
sketch4.addConstraint(Sketcher.Constraint("Horizontal", 0, 2, 2, 2))
sketch4.addConstraint(Sketcher.Constraint("Vertical", 1, 2, 3, 2))
sketch4.addConstraint(Sketcher.Constraint("DistanceX", 5, 1, 5, 2, Q("0.1 in")))
sketch4.addConstraint(Sketcher.Constraint("DistanceY", 4, 1, 4, 2, Q("0.2 in")))
sketch4.addConstraint(Sketcher.Constraint("DistanceY", 0, 2, 4, 2, Q("0.1 in")))
sketch4.addConstraint(Sketcher.Constraint("DistanceY", 0, 2, -1, 1, Q("0.35 in")))
sketch4.addConstraint(Sketcher.Constraint("DistanceX", -1, 1, 2, 2, Q("1.35 in")))
sketch4.addConstraint(Sketcher.Constraint("DistanceX", 4, 2, 0, 2, Q("0.25 in")))
sketch4.addConstraint(Sketcher.Constraint("Distance", 0, 5.014419))
pad3 = doc.addObject("PartDesign::Pad", "Pad002")
body.addObject(pad3)
pad3.Profile = sketch4
pad3.Length = Q("0.05 in")
pad3.Reversed = True

# Sketch on XZ plane
sketch5 = doc.addObject("Sketcher::SketchObject", "Sketch004")
body.addObject(sketch5)
sketch5.AttachmentSupport = (doc.XZ_Plane, [""])
sketch5.MapMode = "FlatFace"
sketch5.AttachmentOffset = App.Placement(Vector(0, 0, -0.065 * 25.4), App.Rotation())
sketch5.addGeometry(Part.Circle(Vector(2.5, -11.4, 0), Vector(0, 0, 1), 0.6), False)
sketch5.addGeometry(Part.Circle(Vector(5.1, -11.4, 0), Vector(0, 0, 1), 0.6), False)
sketch5.addGeometry(Part.Circle(Vector(5.1, -8.9, 0), Vector(0, 0, 1), 0.6), False)
sketch5.addGeometry(Part.Circle(Vector(2.5, -8.9, 0), Vector(0, 0, 1), 0.6), False)
sketch5.addGeometry(Part.Circle(Vector(2.5, -6.3, 0), Vector(0, 0, 1), 0.6), False)
sketch5.addGeometry(Part.Circle(Vector(5.1, -6.3, 0), Vector(0, 0, 1), 0.6), False)
sketch5.addConstraint(Sketcher.Constraint("Equal", 0, 1))
sketch5.addConstraint(Sketcher.Constraint("Equal", 1, 2))
sketch5.addConstraint(Sketcher.Constraint("Equal", 2, 3))
sketch5.addConstraint(Sketcher.Constraint("Equal", 3, 4))
sketch5.addConstraint(Sketcher.Constraint("Equal", 4, 5))
sketch5.addConstraint(Sketcher.Constraint("Horizontal", 0, 3, 1, 3))
sketch5.addConstraint(Sketcher.Constraint("Horizontal", 2, 3, 3, 3))
sketch5.addConstraint(Sketcher.Constraint("Horizontal", 4, 3, 5, 3))
sketch5.addConstraint(Sketcher.Constraint("Vertical", 1, 3, 2, 3))
sketch5.addConstraint(Sketcher.Constraint("Vertical", 0, 3, 3, 3))
sketch5.addConstraint(Sketcher.Constraint("Vertical", 3, 3, 4, 3))
sketch5.addConstraint(Sketcher.Constraint("Vertical", 2, 3, 5, 3))
sketch5.addConstraint(Sketcher.Constraint("Diameter", 0, Q("0.05 in")))
sketch5.addConstraint(Sketcher.Constraint("DistanceX", -1, 1, 0, 3, Q("0.1 in")))
sketch5.addConstraint(Sketcher.Constraint("DistanceX", -1, 1, 1, 3, Q("0.2 in")))
sketch5.addConstraint(Sketcher.Constraint("DistanceY", 1, 3, 2, 3, Q("0.1 in")))
sketch5.addConstraint(Sketcher.Constraint("DistanceY", 3, 3, 4, 3, Q("0.1 in")))
sketch5.addConstraint(Sketcher.Constraint("DistanceY", 0, 3, -1, 1, Q("0.45 in")))
pocket2 = doc.addObject("PartDesign::Pocket", "Pocket001")
body.addObject(pocket2)
pocket2.Profile = sketch5
pocket2.Type = "ThroughAll"
pocket2.Reversed = True

# Sketch on XZ plane
sketch6 = doc.addObject("Sketcher::SketchObject", "Sketch005")
body.addObject(sketch6)
sketch6.AttachmentSupport = (doc.XZ_Plane, [""])
sketch6.MapMode = "FlatFace"
sketch6.AttachmentOffset = App.Placement(Vector(0, 0, -0.065 * 25.4), App.Rotation())
sketch6.addGeometry(Part.LineSegment(Vector(8.7, -11.7, 0), Vector(8.7, -10.9, 0)), False)
sketch6.addGeometry(Part.LineSegment(Vector(8.7, -10.9, 0), Vector(10.9, -10.9, 0)), False)
sketch6.addGeometry(Part.LineSegment(Vector(10.9, -10.9, 0), Vector(10.9, -11.7, 0)), False)
sketch6.addGeometry(Part.LineSegment(Vector(10.9, -11.7, 0), Vector(8.7, -11.7, 0)), False)
sketch6.addGeometry(Part.LineSegment(Vector(8.7, -9.9, 0), Vector(8.7, -9.1, 0)), False)
sketch6.addGeometry(Part.LineSegment(Vector(8.7, -9.1, 0), Vector(10.9, -9.1, 0)), False)
sketch6.addGeometry(Part.LineSegment(Vector(10.9, -9.1, 0), Vector(10.9, -9.9, 0)), False)
sketch6.addGeometry(Part.LineSegment(Vector(10.9, -9.9, 0), Vector(8.7, -9.9, 0)), False)
sketch6.addGeometry(Part.LineSegment(Vector(8.7, -7.9, 0), Vector(8.7, -7.2, 0)), False)
sketch6.addGeometry(Part.LineSegment(Vector(8.7, -7.2, 0), Vector(10.9, -7.2, 0)), False)
sketch6.addGeometry(Part.LineSegment(Vector(10.9, -7.2, 0), Vector(10.9, -7.9, 0)), False)
sketch6.addGeometry(Part.LineSegment(Vector(10.9, -7.9, 0), Vector(8.7, -7.9, 0)), False)
sketch6.addGeometry(Part.LineSegment(Vector(8.7, -5.6, 0), Vector(8.7, -5, 0)), False)
sketch6.addGeometry(Part.LineSegment(Vector(8.7, -5, 0), Vector(10.9, -5, 0)), False)
sketch6.addGeometry(Part.LineSegment(Vector(10.9, -5, 0), Vector(10.9, -5.6, 0)), False)
sketch6.addGeometry(Part.LineSegment(Vector(10.9, -5.6, 0), Vector(8.7, -5.6, 0)), False)
sketch6.addConstraint(Sketcher.Constraint("Coincident", 0, 2, 1, 1))
sketch6.addConstraint(Sketcher.Constraint("Coincident", 1, 2, 2, 1))
sketch6.addConstraint(Sketcher.Constraint("Coincident", 2, 2, 3, 1))
sketch6.addConstraint(Sketcher.Constraint("Coincident", 3, 2, 0, 1))
sketch6.addConstraint(Sketcher.Constraint("Coincident", 4, 2, 5, 1))
sketch6.addConstraint(Sketcher.Constraint("Coincident", 5, 2, 6, 1))
sketch6.addConstraint(Sketcher.Constraint("Coincident", 6, 2, 7, 1))
sketch6.addConstraint(Sketcher.Constraint("Coincident", 7, 2, 4, 1))
sketch6.addConstraint(Sketcher.Constraint("Coincident", 8, 2, 9, 1))
sketch6.addConstraint(Sketcher.Constraint("Coincident", 9, 2, 10, 1))
sketch6.addConstraint(Sketcher.Constraint("Coincident", 10, 2, 11, 1))
sketch6.addConstraint(Sketcher.Constraint("Coincident", 11, 2, 8, 1))
sketch6.addConstraint(Sketcher.Constraint("Coincident", 12, 2, 13, 1))
sketch6.addConstraint(Sketcher.Constraint("Coincident", 13, 2, 14, 1))
sketch6.addConstraint(Sketcher.Constraint("Coincident", 14, 2, 15, 1))
sketch6.addConstraint(Sketcher.Constraint("Coincident", 15, 2, 12, 1))
sketch6.addConstraint(Sketcher.Constraint("Vertical", 0))
sketch6.addConstraint(Sketcher.Constraint("Horizontal", 1))
sketch6.addConstraint(Sketcher.Constraint("Vertical", 2))
sketch6.addConstraint(Sketcher.Constraint("Horizontal", 3))
sketch6.addConstraint(Sketcher.Constraint("Vertical", 4))
sketch6.addConstraint(Sketcher.Constraint("Horizontal", 5))
sketch6.addConstraint(Sketcher.Constraint("Vertical", 6))
sketch6.addConstraint(Sketcher.Constraint("Horizontal", 7))
sketch6.addConstraint(Sketcher.Constraint("Vertical", 8))
sketch6.addConstraint(Sketcher.Constraint("Horizontal", 9))
sketch6.addConstraint(Sketcher.Constraint("Vertical", 10))
sketch6.addConstraint(Sketcher.Constraint("Horizontal", 11))
sketch6.addConstraint(Sketcher.Constraint("Vertical", 12))
sketch6.addConstraint(Sketcher.Constraint("Horizontal", 13))
sketch6.addConstraint(Sketcher.Constraint("Vertical", 14))
sketch6.addConstraint(Sketcher.Constraint("Horizontal", 15))
sketch6.addConstraint(Sketcher.Constraint("Vertical", 3, 2, 4, 2))
sketch6.addConstraint(Sketcher.Constraint("Vertical", 2, 2, 5, 2))
sketch6.addConstraint(Sketcher.Constraint("Vertical", 7, 2, 8, 2))
sketch6.addConstraint(Sketcher.Constraint("Vertical", 6, 2, 9, 2))
sketch6.addConstraint(Sketcher.Constraint("Vertical", 11, 2, 12, 2))
sketch6.addConstraint(Sketcher.Constraint("Vertical", 10, 2, 13, 2))
sketch6.addConstraint(Sketcher.Constraint("DistanceX", 1, 1, 1, 2, 2.180272))
sketch6.addConstraint(Sketcher.Constraint("DistanceY", 0, 2, -1, 1, 10.942698))
sketch6.addConstraint(Sketcher.Constraint("DistanceY", 0, 1, 0, 2, 0.803258))
sketch6.addConstraint(Sketcher.Constraint("DistanceY", 4, 1, 4, 2, 0.726757))
sketch6.addConstraint(Sketcher.Constraint("DistanceY", 8, 1, 8, 2, 0.688507))
sketch6.addConstraint(Sketcher.Constraint("DistanceY", 12, 1, 12, 2, 0.612006))
sketch6.addConstraint(Sketcher.Constraint("DistanceX", -1, 1, 1, 2, 10.920549))
sketch6.addConstraint(Sketcher.Constraint("DistanceY", 4, 2, -1, 1, 9.14493))
sketch6.addConstraint(Sketcher.Constraint("DistanceY", 8, 2, -1, 1, 7.194161))
sketch6.addConstraint(Sketcher.Constraint("DistanceY", 12, 2, -1, 1, 4.975639))
pad4 = doc.addObject("PartDesign::Pad", "Pad003")
body.addObject(pad4)
pad4.Profile = sketch6
pad4.Length = Q("0.015 in")
pad4.Reversed = True

doc.recompute()
